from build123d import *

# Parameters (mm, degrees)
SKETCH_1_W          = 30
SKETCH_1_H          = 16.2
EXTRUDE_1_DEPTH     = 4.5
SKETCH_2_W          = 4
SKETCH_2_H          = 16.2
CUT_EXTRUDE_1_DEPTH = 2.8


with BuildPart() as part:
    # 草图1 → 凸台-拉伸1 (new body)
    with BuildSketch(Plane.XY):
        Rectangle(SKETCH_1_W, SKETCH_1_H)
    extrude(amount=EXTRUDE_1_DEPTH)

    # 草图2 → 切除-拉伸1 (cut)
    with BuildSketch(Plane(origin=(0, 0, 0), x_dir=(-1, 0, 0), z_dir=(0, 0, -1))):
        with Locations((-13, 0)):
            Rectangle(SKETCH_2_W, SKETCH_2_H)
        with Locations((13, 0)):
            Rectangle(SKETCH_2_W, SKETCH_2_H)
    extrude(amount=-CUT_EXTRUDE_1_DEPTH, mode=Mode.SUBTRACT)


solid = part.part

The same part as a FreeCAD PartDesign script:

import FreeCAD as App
import Part
import Sketcher

V = App.Vector
Q = App.Units.Quantity

doc = App.newDocument("Part")
body = doc.addObject("PartDesign::Body", "Body")

sketch1 = body.newObject("Sketcher::SketchObject", "Sketch")
sketch1.AttachmentSupport = (doc.getObject("XY_Plane"), [""])
sketch1.MapMode = "FlatFace"
sketch1.addGeometry(Part.LineSegment(V(-15, 8, 0), V(-15, -8, 0)), False)
sketch1.addGeometry(Part.LineSegment(V(-15, -8, 0), V(15, -8, 0)), False)
sketch1.addGeometry(Part.LineSegment(V(15, -8, 0), V(15, 8, 0)), False)
sketch1.addGeometry(Part.LineSegment(V(15, 8, 0), V(-15, 8, 0)), False)
sketch1.addConstraint(Sketcher.Constraint("Coincident", 0, 2, 1, 1))
sketch1.addConstraint(Sketcher.Constraint("Coincident", 1, 2, 2, 1))
sketch1.addConstraint(Sketcher.Constraint("Coincident", 2, 2, 3, 1))
sketch1.addConstraint(Sketcher.Constraint("Coincident", 3, 2, 0, 1))
sketch1.addConstraint(Sketcher.Constraint("Vertical", 0))
sketch1.addConstraint(Sketcher.Constraint("Horizontal", 1))
sketch1.addConstraint(Sketcher.Constraint("Vertical", 2))
sketch1.addConstraint(Sketcher.Constraint("Horizontal", 3))
sketch1.addConstraint(Sketcher.Constraint("Symmetric", 0, 2, 2, 2, -1, 1))
sketch1.addConstraint(Sketcher.Constraint("DistanceX", 1, 1, 1, 2, Q("30 mm")))
sketch1.addConstraint(Sketcher.Constraint("DistanceY", 0, 2, 0, 1, Q("16.2 mm")))
pad1 = body.newObject("PartDesign::Pad", "Pad")
pad1.Profile = sketch1
pad1.Length = 4.5

sketch2 = body.newObject("Sketcher::SketchObject", "Sketch001")
sketch2.AttachmentSupport = (doc.getObject("XY_Plane"), [""])
sketch2.MapMode = "FlatFace"
sketch2.addGeometry(Part.LineSegment(V(15, 8.1, 0), V(15, -8.1, 0)), False)
sketch2.addGeometry(Part.LineSegment(V(15, -8.1, 0), V(11, -8.1, 0)), False)
sketch2.addGeometry(Part.LineSegment(V(11, -8.1, 0), V(11, 8.1, 0)), False)
sketch2.addGeometry(Part.LineSegment(V(11, 8.1, 0), V(15, 8.1, 0)), False)
sketch2.addGeometry(Part.LineSegment(V(-11, 8.1, 0), V(-11, -8.1, 0)), False)
sketch2.addGeometry(Part.LineSegment(V(-11, -8.1, 0), V(-15, -8.1, 0)), False)
sketch2.addGeometry(Part.LineSegment(V(-15, -8.1, 0), V(-15, 8.1, 0)), False)
sketch2.addGeometry(Part.LineSegment(V(-15, 8.1, 0), V(-11, 8.1, 0)), False)
sketch2.addConstraint(Sketcher.Constraint("Coincident", 0, 2, 1, 1))
sketch2.addConstraint(Sketcher.Constraint("Coincident", 1, 2, 2, 1))
sketch2.addConstraint(Sketcher.Constraint("Coincident", 2, 2, 3, 1))
sketch2.addConstraint(Sketcher.Constraint("Coincident", 3, 2, 0, 1))
sketch2.addConstraint(Sketcher.Constraint("Coincident", 4, 2, 5, 1))
sketch2.addConstraint(Sketcher.Constraint("Coincident", 5, 2, 6, 1))
sketch2.addConstraint(Sketcher.Constraint("Coincident", 6, 2, 7, 1))
sketch2.addConstraint(Sketcher.Constraint("Coincident", 7, 2, 4, 1))
sketch2.addConstraint(Sketcher.Constraint("Vertical", 0))
sketch2.addConstraint(Sketcher.Constraint("Horizontal", 1))
sketch2.addConstraint(Sketcher.Constraint("Vertical", 2))
sketch2.addConstraint(Sketcher.Constraint("Horizontal", 3))
sketch2.addConstraint(Sketcher.Constraint("Vertical", 4))
sketch2.addConstraint(Sketcher.Constraint("Horizontal", 5))
sketch2.addConstraint(Sketcher.Constraint("Vertical", 6))
sketch2.addConstraint(Sketcher.Constraint("Horizontal", 7))
sketch2.addConstraint(Sketcher.Constraint("Symmetric", 2, 2, 4, 2, -1, 1))
sketch2.addConstraint(Sketcher.Constraint("Symmetric", 0, 2, 6, 2, -1, 1))
sketch2.addConstraint(Sketcher.Constraint("Horizontal", 1, 2, 4, 2))
sketch2.addConstraint(Sketcher.Constraint("DistanceX", 1, 2, 1, 1, Q("4 mm")))
sketch2.addConstraint(Sketcher.Constraint("DistanceY", 0, 2, 0, 1, Q("16.2 mm")))
sketch2.addConstraint(Sketcher.Constraint("DistanceX", -1, 1, 0, 2, Q("15 mm")))
pocket1 = body.newObject("PartDesign::Pocket", "Pocket")
pocket1.Profile = sketch2
pocket1.Length = 2.8
pocket1.Reversed = True

doc.recompute()
